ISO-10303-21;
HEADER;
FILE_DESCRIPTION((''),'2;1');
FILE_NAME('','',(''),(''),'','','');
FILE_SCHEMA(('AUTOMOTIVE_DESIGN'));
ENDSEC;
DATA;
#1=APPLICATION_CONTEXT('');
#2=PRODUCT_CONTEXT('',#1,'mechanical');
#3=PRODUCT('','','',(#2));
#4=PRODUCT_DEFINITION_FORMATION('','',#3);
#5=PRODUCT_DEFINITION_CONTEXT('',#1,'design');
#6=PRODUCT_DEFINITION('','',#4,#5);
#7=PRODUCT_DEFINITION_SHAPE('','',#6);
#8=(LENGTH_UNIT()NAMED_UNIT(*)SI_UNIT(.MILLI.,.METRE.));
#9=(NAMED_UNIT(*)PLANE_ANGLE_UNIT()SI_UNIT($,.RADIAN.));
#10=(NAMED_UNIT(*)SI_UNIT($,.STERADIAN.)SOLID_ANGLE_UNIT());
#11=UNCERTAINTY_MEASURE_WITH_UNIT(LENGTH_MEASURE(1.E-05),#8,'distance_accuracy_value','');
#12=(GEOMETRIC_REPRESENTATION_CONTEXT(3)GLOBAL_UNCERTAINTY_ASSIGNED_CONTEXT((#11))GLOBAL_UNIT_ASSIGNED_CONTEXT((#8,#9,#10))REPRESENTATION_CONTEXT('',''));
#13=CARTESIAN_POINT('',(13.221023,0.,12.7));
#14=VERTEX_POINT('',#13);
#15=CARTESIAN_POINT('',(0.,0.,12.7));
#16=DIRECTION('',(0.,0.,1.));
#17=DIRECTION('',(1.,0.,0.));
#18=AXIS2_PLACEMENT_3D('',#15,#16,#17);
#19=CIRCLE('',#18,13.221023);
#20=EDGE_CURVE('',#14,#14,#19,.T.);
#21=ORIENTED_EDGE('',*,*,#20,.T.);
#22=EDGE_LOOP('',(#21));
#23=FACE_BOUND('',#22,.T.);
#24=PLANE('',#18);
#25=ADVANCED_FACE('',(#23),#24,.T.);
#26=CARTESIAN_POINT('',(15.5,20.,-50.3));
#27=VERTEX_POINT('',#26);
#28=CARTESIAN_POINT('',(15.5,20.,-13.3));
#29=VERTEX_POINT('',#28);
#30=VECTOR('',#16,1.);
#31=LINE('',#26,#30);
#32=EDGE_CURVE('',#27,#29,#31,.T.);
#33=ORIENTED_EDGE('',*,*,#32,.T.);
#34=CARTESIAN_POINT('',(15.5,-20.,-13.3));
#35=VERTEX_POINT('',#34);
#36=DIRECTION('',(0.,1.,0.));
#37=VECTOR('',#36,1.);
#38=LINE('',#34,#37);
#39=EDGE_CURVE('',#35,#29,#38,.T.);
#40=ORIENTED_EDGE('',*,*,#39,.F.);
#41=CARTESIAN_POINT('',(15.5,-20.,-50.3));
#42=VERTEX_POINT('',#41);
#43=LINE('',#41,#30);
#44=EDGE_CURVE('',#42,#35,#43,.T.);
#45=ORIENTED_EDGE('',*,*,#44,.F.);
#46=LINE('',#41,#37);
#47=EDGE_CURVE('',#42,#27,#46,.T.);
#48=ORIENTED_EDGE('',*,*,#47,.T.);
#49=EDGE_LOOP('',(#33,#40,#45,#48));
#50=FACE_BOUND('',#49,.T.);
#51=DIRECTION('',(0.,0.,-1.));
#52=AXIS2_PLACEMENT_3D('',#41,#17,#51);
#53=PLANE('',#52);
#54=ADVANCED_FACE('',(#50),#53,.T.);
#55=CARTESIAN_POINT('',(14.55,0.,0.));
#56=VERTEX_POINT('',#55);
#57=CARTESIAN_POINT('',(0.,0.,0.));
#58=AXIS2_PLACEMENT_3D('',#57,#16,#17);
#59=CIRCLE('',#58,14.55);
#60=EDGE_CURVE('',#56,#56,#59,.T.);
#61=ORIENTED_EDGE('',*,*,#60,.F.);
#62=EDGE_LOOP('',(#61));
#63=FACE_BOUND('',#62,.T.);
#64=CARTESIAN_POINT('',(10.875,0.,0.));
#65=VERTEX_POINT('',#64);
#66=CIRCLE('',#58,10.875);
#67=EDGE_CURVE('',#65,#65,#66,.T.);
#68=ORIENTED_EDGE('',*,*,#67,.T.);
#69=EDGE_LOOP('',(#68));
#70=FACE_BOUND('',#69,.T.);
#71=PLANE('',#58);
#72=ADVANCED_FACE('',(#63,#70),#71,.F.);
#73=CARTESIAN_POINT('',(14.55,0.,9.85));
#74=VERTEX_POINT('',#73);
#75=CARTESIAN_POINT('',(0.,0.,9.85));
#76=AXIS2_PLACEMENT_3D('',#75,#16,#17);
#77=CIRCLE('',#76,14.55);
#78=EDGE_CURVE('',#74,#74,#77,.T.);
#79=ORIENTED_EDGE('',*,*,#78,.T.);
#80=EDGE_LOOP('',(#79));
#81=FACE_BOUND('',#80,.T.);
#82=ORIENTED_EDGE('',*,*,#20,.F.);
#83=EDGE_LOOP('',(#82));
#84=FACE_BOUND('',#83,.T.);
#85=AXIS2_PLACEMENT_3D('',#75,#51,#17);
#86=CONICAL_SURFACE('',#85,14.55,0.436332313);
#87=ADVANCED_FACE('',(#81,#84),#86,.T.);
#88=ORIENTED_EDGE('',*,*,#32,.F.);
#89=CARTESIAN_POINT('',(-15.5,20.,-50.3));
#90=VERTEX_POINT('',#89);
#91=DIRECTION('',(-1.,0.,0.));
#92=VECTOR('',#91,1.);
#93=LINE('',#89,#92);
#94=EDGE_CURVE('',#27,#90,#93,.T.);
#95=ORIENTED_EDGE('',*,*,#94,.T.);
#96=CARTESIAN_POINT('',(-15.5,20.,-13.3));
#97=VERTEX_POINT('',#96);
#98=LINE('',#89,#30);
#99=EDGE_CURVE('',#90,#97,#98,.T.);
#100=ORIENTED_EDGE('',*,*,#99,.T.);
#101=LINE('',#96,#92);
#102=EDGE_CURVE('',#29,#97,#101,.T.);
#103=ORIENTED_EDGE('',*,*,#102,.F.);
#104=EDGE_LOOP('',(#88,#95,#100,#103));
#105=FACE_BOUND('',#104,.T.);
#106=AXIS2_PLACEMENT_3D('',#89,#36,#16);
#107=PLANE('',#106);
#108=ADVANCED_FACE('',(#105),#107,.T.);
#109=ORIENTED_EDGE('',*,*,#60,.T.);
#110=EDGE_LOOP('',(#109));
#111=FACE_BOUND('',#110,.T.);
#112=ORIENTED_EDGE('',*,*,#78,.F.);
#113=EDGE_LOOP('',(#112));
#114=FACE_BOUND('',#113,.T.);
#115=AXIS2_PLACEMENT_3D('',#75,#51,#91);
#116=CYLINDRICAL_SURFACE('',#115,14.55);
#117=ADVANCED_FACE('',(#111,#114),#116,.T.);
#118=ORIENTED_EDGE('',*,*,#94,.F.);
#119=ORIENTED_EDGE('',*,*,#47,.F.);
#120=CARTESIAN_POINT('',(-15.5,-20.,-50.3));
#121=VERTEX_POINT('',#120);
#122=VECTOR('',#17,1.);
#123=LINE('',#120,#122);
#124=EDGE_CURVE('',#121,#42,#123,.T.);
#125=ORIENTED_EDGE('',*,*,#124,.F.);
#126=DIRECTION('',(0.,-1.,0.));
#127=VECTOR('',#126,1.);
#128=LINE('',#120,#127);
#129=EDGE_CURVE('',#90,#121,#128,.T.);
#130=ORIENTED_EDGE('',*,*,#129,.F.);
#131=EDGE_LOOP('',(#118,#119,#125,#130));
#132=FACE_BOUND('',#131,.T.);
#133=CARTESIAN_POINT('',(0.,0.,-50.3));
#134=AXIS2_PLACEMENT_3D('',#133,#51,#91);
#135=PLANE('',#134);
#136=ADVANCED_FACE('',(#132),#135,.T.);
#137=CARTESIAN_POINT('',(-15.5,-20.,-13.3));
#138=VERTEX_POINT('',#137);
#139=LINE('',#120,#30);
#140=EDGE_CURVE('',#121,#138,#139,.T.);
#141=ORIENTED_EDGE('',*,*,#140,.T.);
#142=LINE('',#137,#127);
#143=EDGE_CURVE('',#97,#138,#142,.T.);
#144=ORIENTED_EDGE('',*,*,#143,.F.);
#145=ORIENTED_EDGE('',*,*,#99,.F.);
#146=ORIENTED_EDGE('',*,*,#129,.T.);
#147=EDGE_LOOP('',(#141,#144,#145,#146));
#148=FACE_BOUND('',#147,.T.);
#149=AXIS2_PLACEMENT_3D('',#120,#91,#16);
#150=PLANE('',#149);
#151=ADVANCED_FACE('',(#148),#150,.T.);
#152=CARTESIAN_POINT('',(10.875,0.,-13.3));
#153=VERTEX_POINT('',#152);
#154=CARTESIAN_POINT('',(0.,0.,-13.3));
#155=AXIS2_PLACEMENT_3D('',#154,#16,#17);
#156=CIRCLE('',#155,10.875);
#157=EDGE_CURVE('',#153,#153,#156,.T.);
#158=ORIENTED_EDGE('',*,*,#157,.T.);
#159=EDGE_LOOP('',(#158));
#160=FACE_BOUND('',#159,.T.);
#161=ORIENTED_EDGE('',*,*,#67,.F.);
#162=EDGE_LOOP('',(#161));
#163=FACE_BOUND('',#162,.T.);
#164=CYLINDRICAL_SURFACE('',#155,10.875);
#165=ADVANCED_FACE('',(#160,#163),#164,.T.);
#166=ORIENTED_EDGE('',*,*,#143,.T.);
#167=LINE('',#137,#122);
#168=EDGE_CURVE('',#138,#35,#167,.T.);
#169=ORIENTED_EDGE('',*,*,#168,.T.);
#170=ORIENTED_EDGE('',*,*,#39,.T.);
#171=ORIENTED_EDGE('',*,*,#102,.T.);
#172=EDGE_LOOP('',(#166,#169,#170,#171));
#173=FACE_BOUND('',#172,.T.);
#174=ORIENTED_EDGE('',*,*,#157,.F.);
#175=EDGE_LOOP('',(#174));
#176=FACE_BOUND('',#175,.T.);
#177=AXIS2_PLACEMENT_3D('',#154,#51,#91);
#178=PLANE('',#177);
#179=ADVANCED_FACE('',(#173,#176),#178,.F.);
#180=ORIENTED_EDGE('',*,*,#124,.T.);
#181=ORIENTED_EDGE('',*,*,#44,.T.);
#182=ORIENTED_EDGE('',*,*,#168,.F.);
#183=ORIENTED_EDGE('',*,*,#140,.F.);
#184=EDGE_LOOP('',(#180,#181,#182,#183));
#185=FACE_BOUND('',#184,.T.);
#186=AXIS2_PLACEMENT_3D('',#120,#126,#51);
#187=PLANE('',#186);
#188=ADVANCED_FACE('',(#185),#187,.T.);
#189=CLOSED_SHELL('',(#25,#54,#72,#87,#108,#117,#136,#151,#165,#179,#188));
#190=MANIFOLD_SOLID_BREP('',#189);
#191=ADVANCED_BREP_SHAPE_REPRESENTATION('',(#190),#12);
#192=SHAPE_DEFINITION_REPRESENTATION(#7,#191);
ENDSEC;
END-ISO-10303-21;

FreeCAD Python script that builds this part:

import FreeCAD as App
import Part
import Sketcher
Q = App.Units.Quantity


def add_polygon(sketch, points):
    """Adds a closed chain of lines whose ends are joined by coincident constraints."""
    first, n = sketch.GeometryCount, len(points)
    for a, b in zip(points, points[1:] + points[:1]):
        sketch.addGeometry(Part.LineSegment(App.Vector(*a, 0), App.Vector(*b, 0)), False)
    for i in range(n):
        sketch.addConstraint(Sketcher.Constraint("Coincident", first + i, 2, first + (i + 1) % n, 1))

doc = App.newDocument("Part")
body = doc.addObject("PartDesign::Body", "Body")

sketch1 = body.newObject("Sketcher::SketchObject", "Sketch")
sketch1.AttachmentSupport = (doc.getObject("XY_Plane"), [""])
sketch1.MapMode = "FlatFace"
sketch1.addGeometry(Part.Circle(App.Vector(0, 0, 0), App.Vector(0, 0, 1), 15), False)
sketch1.addConstraint([
    Sketcher.Constraint("Coincident", 0, 3, -1, 1),
    Sketcher.Constraint("Diameter", 0, Q("29.1 mm")),
])
pad1 = body.newObject("PartDesign::Pad", "Pad")
pad1.Profile = sketch1
pad1.Length = 9.85

sketch2 = body.newObject("Sketcher::SketchObject", "Sketch001")
sketch2.AttachmentSupport = (doc.getObject("XY_Plane"), [""])
sketch2.MapMode = "FlatFace"
sketch2.AttachmentOffset = App.Placement(App.Vector(0, 0, 9.85), App.Rotation())
sketch2.addGeometry(Part.Circle(App.Vector(0, 0, 0), App.Vector(0, 0, 1), 15), False)
sketch2.addConstraint([
    Sketcher.Constraint("Coincident", 0, 3, -1, 1),
    Sketcher.Constraint("Diameter", 0, Q("29.1 mm")),
])
pad2 = body.newObject("PartDesign::Pad", "Pad001")
pad2.Profile = sketch2
pad2.Length = 2.85
pad2.TaperAngle = -25

sketch3 = body.newObject("Sketcher::SketchObject", "Sketch002")
sketch3.AttachmentSupport = (doc.getObject("XY_Plane"), [""])
sketch3.MapMode = "FlatFace"
sketch3.addGeometry(Part.Circle(App.Vector(0, 0, 0), App.Vector(0, 0, 1), 11), False)
sketch3.addConstraint([
    Sketcher.Constraint("Coincident", 0, 3, -1, 1),
    Sketcher.Constraint("Diameter", 0, Q("21.75 mm")),
])
pad3 = body.newObject("PartDesign::Pad", "Pad002")
pad3.Profile = sketch3
pad3.Length = 13.3
pad3.Reversed = True

sketch4 = body.newObject("Sketcher::SketchObject", "Sketch003")
sketch4.AttachmentSupport = (doc.getObject("XY_Plane"), [""])
sketch4.MapMode = "FlatFace"
sketch4.AttachmentOffset = App.Placement(App.Vector(0, 0, -13.3), App.Rotation())
add_polygon(sketch4, [(-16, 20), (-16, -20), (16, -20), (16, 20)])
sketch4.addConstraint([
    Sketcher.Constraint("Vertical", 0),
    Sketcher.Constraint("Horizontal", 1),
    Sketcher.Constraint("Vertical", 2),
    Sketcher.Constraint("Horizontal", 3),
    Sketcher.Constraint("Symmetric", 0, 2, 2, 2, -1, 1),
    Sketcher.Constraint("DistanceX", 1, 1, 1, 2, Q("31 mm")),
    Sketcher.Constraint("DistanceY", 0, 2, 0, 1, Q("40 mm")),
])
pad4 = body.newObject("PartDesign::Pad", "Pad003")
pad4.Profile = sketch4
pad4.Length = 37
pad4.Reversed = True

doc.recompute()
